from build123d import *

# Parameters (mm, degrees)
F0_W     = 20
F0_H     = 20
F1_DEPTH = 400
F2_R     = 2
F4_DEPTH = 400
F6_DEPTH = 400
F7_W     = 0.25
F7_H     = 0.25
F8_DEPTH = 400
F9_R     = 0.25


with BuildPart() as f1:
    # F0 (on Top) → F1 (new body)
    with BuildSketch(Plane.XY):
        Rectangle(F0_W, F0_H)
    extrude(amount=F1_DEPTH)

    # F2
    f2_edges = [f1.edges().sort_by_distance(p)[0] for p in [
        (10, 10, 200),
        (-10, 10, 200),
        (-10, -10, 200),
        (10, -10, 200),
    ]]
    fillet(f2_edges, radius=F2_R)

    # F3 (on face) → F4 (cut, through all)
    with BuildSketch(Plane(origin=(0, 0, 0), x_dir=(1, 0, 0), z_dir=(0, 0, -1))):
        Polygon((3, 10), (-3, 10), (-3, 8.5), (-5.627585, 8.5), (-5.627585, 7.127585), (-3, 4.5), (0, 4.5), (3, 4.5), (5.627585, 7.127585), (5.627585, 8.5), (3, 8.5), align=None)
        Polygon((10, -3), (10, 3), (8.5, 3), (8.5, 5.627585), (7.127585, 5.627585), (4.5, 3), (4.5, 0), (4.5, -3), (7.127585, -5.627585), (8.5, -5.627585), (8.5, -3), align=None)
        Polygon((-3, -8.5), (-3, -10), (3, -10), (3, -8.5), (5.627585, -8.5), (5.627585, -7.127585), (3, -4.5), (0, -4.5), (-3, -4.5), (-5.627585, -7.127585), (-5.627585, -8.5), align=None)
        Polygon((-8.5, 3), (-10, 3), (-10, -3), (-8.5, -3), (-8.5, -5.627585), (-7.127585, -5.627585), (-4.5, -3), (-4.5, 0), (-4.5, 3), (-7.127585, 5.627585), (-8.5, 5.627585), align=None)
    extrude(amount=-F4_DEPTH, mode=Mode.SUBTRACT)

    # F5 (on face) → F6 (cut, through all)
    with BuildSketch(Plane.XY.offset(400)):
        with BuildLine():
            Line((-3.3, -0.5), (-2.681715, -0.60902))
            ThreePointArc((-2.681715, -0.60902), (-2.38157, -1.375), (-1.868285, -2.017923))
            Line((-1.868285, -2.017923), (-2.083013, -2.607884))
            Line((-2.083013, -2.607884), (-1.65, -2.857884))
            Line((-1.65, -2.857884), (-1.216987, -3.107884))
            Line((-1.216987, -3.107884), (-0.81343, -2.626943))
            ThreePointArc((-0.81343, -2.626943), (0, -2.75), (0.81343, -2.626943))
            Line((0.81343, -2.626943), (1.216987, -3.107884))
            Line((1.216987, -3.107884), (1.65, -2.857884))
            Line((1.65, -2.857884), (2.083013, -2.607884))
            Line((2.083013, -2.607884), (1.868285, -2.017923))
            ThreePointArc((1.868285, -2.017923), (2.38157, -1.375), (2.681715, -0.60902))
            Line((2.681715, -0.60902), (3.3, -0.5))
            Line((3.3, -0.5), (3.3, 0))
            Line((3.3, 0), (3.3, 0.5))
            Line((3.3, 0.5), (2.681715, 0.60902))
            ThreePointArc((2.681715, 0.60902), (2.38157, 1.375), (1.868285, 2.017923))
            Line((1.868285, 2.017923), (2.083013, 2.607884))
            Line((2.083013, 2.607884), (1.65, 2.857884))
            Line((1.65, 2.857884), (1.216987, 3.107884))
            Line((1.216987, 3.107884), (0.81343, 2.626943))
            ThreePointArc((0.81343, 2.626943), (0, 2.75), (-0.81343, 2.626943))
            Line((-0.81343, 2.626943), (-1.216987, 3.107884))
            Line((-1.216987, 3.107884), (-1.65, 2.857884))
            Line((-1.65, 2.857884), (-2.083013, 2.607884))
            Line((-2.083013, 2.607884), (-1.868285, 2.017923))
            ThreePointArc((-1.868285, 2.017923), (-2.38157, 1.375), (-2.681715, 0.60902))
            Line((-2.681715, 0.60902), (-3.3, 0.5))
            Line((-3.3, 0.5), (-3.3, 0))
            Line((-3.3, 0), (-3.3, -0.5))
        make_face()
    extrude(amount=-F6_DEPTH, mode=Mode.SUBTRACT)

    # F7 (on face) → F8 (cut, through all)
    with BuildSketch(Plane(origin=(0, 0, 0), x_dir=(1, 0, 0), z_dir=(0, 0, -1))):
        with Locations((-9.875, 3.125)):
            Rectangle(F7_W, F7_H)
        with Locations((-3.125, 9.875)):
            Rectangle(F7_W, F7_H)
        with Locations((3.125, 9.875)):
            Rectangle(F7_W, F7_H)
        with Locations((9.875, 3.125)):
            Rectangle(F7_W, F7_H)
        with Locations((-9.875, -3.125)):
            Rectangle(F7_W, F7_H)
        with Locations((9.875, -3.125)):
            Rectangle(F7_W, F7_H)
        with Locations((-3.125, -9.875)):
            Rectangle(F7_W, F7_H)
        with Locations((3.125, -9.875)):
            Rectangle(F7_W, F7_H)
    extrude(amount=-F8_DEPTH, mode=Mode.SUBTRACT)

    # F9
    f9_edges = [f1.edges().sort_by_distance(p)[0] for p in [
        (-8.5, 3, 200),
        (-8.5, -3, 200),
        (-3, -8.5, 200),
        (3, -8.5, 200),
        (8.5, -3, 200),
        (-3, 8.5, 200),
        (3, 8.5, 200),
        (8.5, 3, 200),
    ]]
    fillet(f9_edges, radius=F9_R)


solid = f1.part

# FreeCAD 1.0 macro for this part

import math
import FreeCAD as App
import Part
import Sketcher

V = App.Vector
Q = App.Units.Quantity


def edges_at(feature, points):
    """Names of the edges that pass closest to the given points."""
    edges = feature.Shape.Edges
    near = lambda p: min(range(len(edges)), key=lambda i: edges[i].distToShape(Part.Vertex(*p))[0])
    return sorted({f"Edge{near(p) + 1}" for p in points})


def add_polygon(sketch, points):
    """Adds a closed chain of lines whose ends are joined by coincident constraints."""
    first, n = sketch.GeometryCount, len(points)
    for a, b in zip(points, points[1:] + points[:1]):
        sketch.addGeometry(Part.LineSegment(App.Vector(*a, 0), App.Vector(*b, 0)), False)
    for i in range(n):
        sketch.addConstraint(Sketcher.Constraint("Coincident", first + i, 2, first + (i + 1) % n, 1))

doc = App.newDocument("Part")
body = doc.addObject("PartDesign::Body", "Body")

sketch1 = doc.addObject("Sketcher::SketchObject", "Sketch")
body.addObject(sketch1)
sketch1.AttachmentSupport = (doc.XY_Plane, [""])
sketch1.MapMode = "FlatFace"
add_polygon(sketch1, [(-10, 10), (-10, -10), (10, -10), (10, 10)])
sketch1.addConstraint([
    Sketcher.Constraint("Vertical", 0),
    Sketcher.Constraint("Horizontal", 1),
    Sketcher.Constraint("Vertical", 2),
    Sketcher.Constraint("Horizontal", 3),
    Sketcher.Constraint("Symmetric", 0, 2, 2, 2, -1, 1),
    Sketcher.Constraint("Equal", 3, 0),
    Sketcher.Constraint("DistanceX", 1, 1, 1, 2, Q("20 mm")),
])
pad1 = doc.addObject("PartDesign::Pad", "Pad")
body.addObject(pad1)
pad1.Profile = sketch1
pad1.Length = 400
doc.recompute()

fillet = doc.addObject("PartDesign::Fillet", "Fillet")
body.addObject(fillet)
fillet.Base = (pad1, edges_at(pad1, [
    (10, 10, 200),
    (-10, 10, 200),
    (-10, -10, 200),
    (10, -10, 200),
]))
fillet.Radius = 2

sketch2 = doc.addObject("Sketcher::SketchObject", "Sketch001")
body.addObject(sketch2)
sketch2.AttachmentSupport = (doc.XY_Plane, [""])
sketch2.MapMode = "FlatFace"
add_polygon(sketch2, [(3, -10), (-3, -10), (-3, -8.5), (-5.6, -8.5), (-5.6, -7.1), (-3, -4.5), (3, -4.5), (5.6, -7.1), (5.6, -8.5), (3, -8.5)])
add_polygon(sketch2, [(10, 3), (10, -3), (8.5, -3), (8.5, -5.6), (7.1, -5.6), (4.5, -3), (4.5, 3), (7.1, 5.6), (8.5, 5.6), (8.5, 3)])
add_polygon(sketch2, [(-3, 8.5), (-3, 10), (3, 10), (3, 8.5), (5.6, 8.5), (5.6, 7.1), (3, 4.5), (-3, 4.5), (-5.6, 7.1), (-5.6, 8.5)])
add_polygon(sketch2, [(-8.5, -3), (-10, -3), (-10, 3), (-8.5, 3), (-8.5, 5.6), (-7.1, 5.6), (-4.5, 3), (-4.5, -3), (-7.1, -5.6), (-8.5, -5.6)])
sketch2.addConstraint([
    Sketcher.Constraint("Horizontal", 0),
    Sketcher.Constraint("Vertical", 1),
    Sketcher.Constraint("Horizontal", 2),
    Sketcher.Constraint("Vertical", 3),
    Sketcher.Constraint("Horizontal", 5),
    Sketcher.Constraint("Vertical", 7),
    Sketcher.Constraint("Horizontal", 8),
    Sketcher.Constraint("Vertical", 9),
    Sketcher.Constraint("Vertical", 10),
    Sketcher.Constraint("Horizontal", 11),
    Sketcher.Constraint("Vertical", 12),
    Sketcher.Constraint("Horizontal", 13),
    Sketcher.Constraint("Vertical", 15),
    Sketcher.Constraint("Horizontal", 17),
    Sketcher.Constraint("Vertical", 18),
    Sketcher.Constraint("Horizontal", 19),
    Sketcher.Constraint("Vertical", 20),
    Sketcher.Constraint("Horizontal", 21),
    Sketcher.Constraint("Vertical", 22),
    Sketcher.Constraint("Horizontal", 23),
    Sketcher.Constraint("Vertical", 24),
    Sketcher.Constraint("Horizontal", 26),
    Sketcher.Constraint("Vertical", 28),
    Sketcher.Constraint("Horizontal", 29),
    Sketcher.Constraint("Horizontal", 30),
    Sketcher.Constraint("Vertical", 31),
    Sketcher.Constraint("Horizontal", 32),
    Sketcher.Constraint("Vertical", 33),
    Sketcher.Constraint("Horizontal", 34),
    Sketcher.Constraint("Vertical", 36),
    Sketcher.Constraint("Horizontal", 38),
    Sketcher.Constraint("Vertical", 39),
    Sketcher.Constraint("Symmetric", 9, 2, 20, 2, -1, 1),
    Sketcher.Constraint("Symmetric", 1, 2, 22, 2, -1, 1),
    Sketcher.Constraint("Symmetric", 3, 2, 24, 2, -1, 1),
    Sketcher.Constraint("Symmetric", 4, 2, 25, 2, -1, 1),
    Sketcher.Constraint("Symmetric", 6, 2, 27, 2, -1, 1),
    Sketcher.Constraint("Symmetric", 19, 2, 30, 2, -1, 1),
    Sketcher.Constraint("Symmetric", 11, 2, 32, 2, -1, 1),
    Sketcher.Constraint("Symmetric", 13, 2, 34, 2, -1, 1),
    Sketcher.Constraint("Symmetric", 14, 2, 35, 2, -1, 1),
    Sketcher.Constraint("Symmetric", 16, 2, 37, 2, -1, 1),
    Sketcher.Constraint("Symmetric", 3, 2, 6, 2, -2),
    Sketcher.Constraint("Symmetric", 1, 2, 8, 2, -2),
    Sketcher.Constraint("Symmetric", 18, 2, 32, 2, -2),
    Sketcher.Constraint("Symmetric", 16, 2, 34, 2, -2),
    Sketcher.Constraint("Perpendicular", 4, 6),
    Sketcher.Constraint("Parallel", 6, 14),
    Sketcher.Constraint("Perpendicular", 14, 16),
    Sketcher.Constraint("Perpendicular", 25, 27),
    Sketcher.Constraint("Perpendicular", 35, 37),
    Sketcher.Constraint("Horizontal", 11, 2, 14, 2),
    Sketcher.Constraint("Horizontal", 15, 2, 18, 2),
    Sketcher.Constraint("Horizontal", 23, 2, 28, 2),
    Sketcher.Constraint("Vertical", 1, 2, 4, 2),
    Sketcher.Constraint("Vertical", 33, 2, 38, 2),
    Sketcher.Constraint("Equal", 32, 1),
    Sketcher.Constraint("Equal", 38, 3),
    Sketcher.Constraint("Equal", 26, 10),
    Sketcher.Constraint("Equal", 29, 12),
    Sketcher.Constraint("DistanceX", 0, 2, 0, 1, Q("6 mm")),
    Sketcher.Constraint("DistanceX", 11, 2, 11, 1, Q("1.5 mm")),
    Sketcher.Constraint("DistanceY", 0, 2, -1, 1, Q("10 mm")),
    Sketcher.Constraint("DistanceX", -1, 1, 10, 2, Q("10 mm")),
    Sketcher.Constraint("DistanceY", 1, 2, 4, 2, Q("4 mm")),
    Sketcher.Constraint("DistanceX", 2, 2, 2, 1, Q("2.627585 mm")),
])
pocket1 = doc.addObject("PartDesign::Pocket", "Pocket")
body.addObject(pocket1)
pocket1.Profile = sketch2
pocket1.Type = "ThroughAll"
pocket1.Reversed = True

sketch3 = doc.addObject("Sketcher::SketchObject", "Sketch002")
body.addObject(sketch3)
sketch3.AttachmentSupport = (doc.XY_Plane, [""])
sketch3.MapMode = "FlatFace"
sketch3.AttachmentOffset = App.Placement(V(0, 0, 400), App.Rotation())
sketch3.addGeometry([
    Part.LineSegment(V(-3.3, -0.5, 0), V(-2.681715, -0.60902, 0)),
    Part.ArcOfCircle(Part.Circle(V(0.000003, 0.000001, 0), V(0, 0, 1), 2.750003), math.radians(-167.205084), math.radians(-132.794948)),
    Part.LineSegment(V(-1.868285, -2.017923, 0), V(-2.083013, -2.607884, 0)),
    Part.LineSegment(V(-2.083013, -2.607884, 0), V(-1.216987, -3.107884, 0)),
    Part.LineSegment(V(-1.216987, -3.107884, 0), V(-0.81343, -2.626943, 0)),
    Part.ArcOfCircle(Part.Circle(V(0, -0.000009, 0), V(0, 0, 1), 2.749991), math.radians(-107.205134), math.radians(-72.794866)),
    Part.LineSegment(V(0.81343, -2.626943, 0), V(1.216987, -3.107884, 0)),
    Part.LineSegment(V(1.216987, -3.107884, 0), V(2.083013, -2.607884, 0)),
    Part.LineSegment(V(2.083013, -2.607884, 0), V(1.868285, -2.017923, 0)),
    Part.ArcOfCircle(Part.Circle(V(-0.000003, 0.000001, 0), V(0, 0, 1), 2.750003), math.radians(-47.205052), math.radians(-12.794916)),
    Part.LineSegment(V(2.681715, -0.60902, 0), V(3.3, -0.5, 0)),
    Part.LineSegment(V(3.3, -0.5, 0), V(3.3, 0.5, 0)),
    Part.LineSegment(V(3.3, 0.5, 0), V(2.681715, 0.60902, 0)),
    Part.ArcOfCircle(Part.Circle(V(-0.000003, -0.000001, 0), V(0, 0, 1), 2.750003), math.radians(12.794916), math.radians(47.205052)),
    Part.LineSegment(V(1.868285, 2.017923, 0), V(2.083013, 2.607884, 0)),
    Part.LineSegment(V(2.083013, 2.607884, 0), V(1.216987, 3.107884, 0)),
    Part.LineSegment(V(1.216987, 3.107884, 0), V(0.81343, 2.626943, 0)),
    Part.ArcOfCircle(Part.Circle(V(0, 0.000009, 0), V(0, 0, 1), 2.749991), math.radians(72.794866), math.radians(107.205134)),
    Part.LineSegment(V(-0.81343, 2.626943, 0), V(-1.216987, 3.107884, 0)),
    Part.LineSegment(V(-1.216987, 3.107884, 0), V(-2.083013, 2.607884, 0)),
    Part.LineSegment(V(-2.083013, 2.607884, 0), V(-1.868285, 2.017923, 0)),
    Part.ArcOfCircle(Part.Circle(V(0.000003, -0.000001, 0), V(0, 0, 1), 2.750003), math.radians(132.794948), math.radians(167.205084)),
    Part.LineSegment(V(-2.681715, 0.60902, 0), V(-3.3, 0.5, 0)),
    Part.LineSegment(V(-3.3, 0.5, 0), V(-3.3, -0.5, 0)),
], False)
sketch3.addConstraint([
    Sketcher.Constraint("Coincident", 0, 2, 1, 1),
    Sketcher.Constraint("Coincident", 1, 2, 2, 1),
    Sketcher.Constraint("Coincident", 2, 2, 3, 1),
    Sketcher.Constraint("Coincident", 3, 2, 4, 1),
    Sketcher.Constraint("Coincident", 4, 2, 5, 1),
    Sketcher.Constraint("Coincident", 5, 2, 6, 1),
    Sketcher.Constraint("Coincident", 6, 2, 7, 1),
    Sketcher.Constraint("Coincident", 7, 2, 8, 1),
    Sketcher.Constraint("Coincident", 8, 2, 9, 1),
    Sketcher.Constraint("Coincident", 9, 2, 10, 1),
    Sketcher.Constraint("Coincident", 10, 2, 11, 1),
    Sketcher.Constraint("Coincident", 11, 2, 12, 1),
    Sketcher.Constraint("Coincident", 12, 2, 13, 1),
    Sketcher.Constraint("Coincident", 13, 2, 14, 1),
    Sketcher.Constraint("Coincident", 14, 2, 15, 1),
    Sketcher.Constraint("Coincident", 15, 2, 16, 1),
    Sketcher.Constraint("Coincident", 16, 2, 17, 1),
    Sketcher.Constraint("Coincident", 17, 2, 18, 1),
    Sketcher.Constraint("Coincident", 18, 2, 19, 1),
    Sketcher.Constraint("Coincident", 19, 2, 20, 1),
    Sketcher.Constraint("Coincident", 20, 2, 21, 1),
    Sketcher.Constraint("Coincident", 21, 2, 22, 1),
    Sketcher.Constraint("Coincident", 22, 2, 23, 1),
    Sketcher.Constraint("Coincident", 23, 2, 0, 1),
    Sketcher.Constraint("Vertical", 11),
    Sketcher.Constraint("Vertical", 23),
    Sketcher.Constraint("Coincident", 1, 3, -1, 1),
    Sketcher.Constraint("Coincident", 5, 3, -1, 1),
    Sketcher.Constraint("Coincident", 9, 3, -1, 1),
    Sketcher.Constraint("Coincident", 13, 3, -1, 1),
    Sketcher.Constraint("Coincident", 17, 3, -1, 1),
    Sketcher.Constraint("Coincident", 21, 3, -1, 1),
    Sketcher.Constraint("DistanceY", 11, 1, 11, 2, Q("1 mm")),
    Sketcher.Constraint("DistanceY", 23, 2, 23, 1, Q("1 mm")),
    Sketcher.Constraint("Distance", 3, Q("1.000001 mm")),
    Sketcher.Constraint("Distance", 7, Q("1.000001 mm")),
    Sketcher.Constraint("Distance", 15, Q("1.000001 mm")),
    Sketcher.Constraint("Distance", 19, Q("1.000001 mm")),
    Sketcher.Constraint("DistanceX", -1, 1, 10, 2, Q("3.3 mm")),
    Sketcher.Constraint("DistanceY", 10, 2, -1, 1, Q("0.5 mm")),
    Sketcher.Constraint("DistanceX", 22, 2, -1, 1, Q("3.3 mm")),
    Sketcher.Constraint("DistanceY", -1, 1, 22, 2, Q("0.5 mm")),
    Sketcher.Constraint("DistanceY", 3, 2, 2, 2, Q("0.5 mm")),
    Sketcher.Constraint("DistanceY", 6, 2, 7, 2, Q("0.5 mm")),
    Sketcher.Constraint("DistanceY", 14, 2, 15, 2, Q("0.5 mm")),
    Sketcher.Constraint("DistanceY", 19, 2, 18, 2, Q("0.5 mm")),
    Sketcher.Constraint("Radius", 5, Q("2.749991 mm")),
    Sketcher.Constraint("Radius", 17, Q("2.749991 mm")),
    Sketcher.Constraint("Radius", 1, Q("2.750003 mm")),
    Sketcher.Constraint("Radius", 9, Q("2.750003 mm")),
    Sketcher.Constraint("Radius", 13, Q("2.750003 mm")),
    Sketcher.Constraint("Radius", 21, Q("2.750003 mm")),
    Sketcher.Constraint("DistanceX", 1, 2, 3, 2, Q("0.651298 mm")),
    Sketcher.Constraint("DistanceX", 15, 2, 13, 2, Q("0.651298 mm")),
    Sketcher.Constraint("DistanceY", 0, 2, -1, 1, Q("0.60902 mm")),
    Sketcher.Constraint("DistanceX", 4, 2, -1, 1, Q("0.81343 mm")),
    Sketcher.Constraint("DistanceX", -1, 1, 5, 2, Q("0.81343 mm")),
    Sketcher.Constraint("DistanceY", 9, 2, -1, 1, Q("0.60902 mm")),
    Sketcher.Constraint("DistanceY", -1, 1, 12, 2, Q("0.60902 mm")),
    Sketcher.Constraint("DistanceX", -1, 1, 16, 2, Q("0.81343 mm")),
    Sketcher.Constraint("DistanceX", 17, 2, -1, 1, Q("0.81343 mm")),
    Sketcher.Constraint("DistanceY", -1, 1, 21, 2, Q("0.60902 mm")),
    Sketcher.Constraint("DistanceX", 0, 2, 1, 2, Q("0.81343 mm")),
    Sketcher.Constraint("DistanceY", 2, 2, 1, 2, Q("0.589961 mm")),
    Sketcher.Constraint("DistanceY", 6, 2, 5, 2, Q("0.480941 mm")),
    Sketcher.Constraint("DistanceX", 21, 3, 7, 2, Q("2.08301 mm")),
    Sketcher.Constraint("DistanceY", 7, 2, 8, 2, Q("0.589961 mm")),
    Sketcher.Constraint("DistanceX", 13, 2, 12, 2, Q("0.81343 mm")),
    Sketcher.Constraint("DistanceY", 13, 2, 14, 2, Q("0.589961 mm")),
    Sketcher.Constraint("DistanceY", 17, 2, 18, 2, Q("0.480941 mm")),
    Sketcher.Constraint("DistanceY", 20, 2, 19, 2, Q("0.589961 mm")),
    Sketcher.Constraint("Distance", 18, Q("0.627824 mm")),
])
pocket2 = doc.addObject("PartDesign::Pocket", "Pocket001")
body.addObject(pocket2)
pocket2.Profile = sketch3
pocket2.Type = "ThroughAll"

sketch4 = doc.addObject("Sketcher::SketchObject", "Sketch003")
body.addObject(sketch4)
sketch4.AttachmentSupport = (doc.XY_Plane, [""])
sketch4.MapMode = "FlatFace"
add_polygon(sketch4, [(-10, -3.25), (-10, -3), (-9.75, -3), (-9.75, -3.25)])
add_polygon(sketch4, [(-3.25, -10), (-3.25, -9.75), (-3, -9.75), (-3, -10)])
add_polygon(sketch4, [(3, -10), (3, -9.75), (3.25, -9.75), (3.25, -10)])
add_polygon(sketch4, [(9.75, -3.25), (9.75, -3), (10, -3), (10, -3.25)])
add_polygon(sketch4, [(-10, 3), (-10, 3.25), (-9.75, 3.25), (-9.75, 3)])
add_polygon(sketch4, [(9.75, 3), (9.75, 3.25), (10, 3.25), (10, 3)])
add_polygon(sketch4, [(-3.25, 9.75), (-3.25, 10), (-3, 10), (-3, 9.75)])
add_polygon(sketch4, [(3, 9.75), (3, 10), (3.25, 10), (3.25, 9.75)])
sketch4.addConstraint([
    Sketcher.Constraint("Vertical", 0),
    Sketcher.Constraint("Horizontal", 1),
    Sketcher.Constraint("Vertical", 2),
    Sketcher.Constraint("Horizontal", 3),
    Sketcher.Constraint("Vertical", 4),
    Sketcher.Constraint("Horizontal", 5),
    Sketcher.Constraint("Vertical", 6),
    Sketcher.Constraint("Horizontal", 7),
    Sketcher.Constraint("Vertical", 8),
    Sketcher.Constraint("Horizontal", 9),
    Sketcher.Constraint("Vertical", 10),
    Sketcher.Constraint("Horizontal", 11),
    Sketcher.Constraint("Vertical", 12),
    Sketcher.Constraint("Horizontal", 13),
    Sketcher.Constraint("Vertical", 14),
    Sketcher.Constraint("Horizontal", 15),
    Sketcher.Constraint("Vertical", 16),
    Sketcher.Constraint("Horizontal", 17),
    Sketcher.Constraint("Vertical", 18),
    Sketcher.Constraint("Horizontal", 19),
    Sketcher.Constraint("Vertical", 20),
    Sketcher.Constraint("Horizontal", 21),
    Sketcher.Constraint("Vertical", 22),
    Sketcher.Constraint("Horizontal", 23),
    Sketcher.Constraint("Vertical", 24),
    Sketcher.Constraint("Horizontal", 25),
    Sketcher.Constraint("Vertical", 26),
    Sketcher.Constraint("Horizontal", 27),
    Sketcher.Constraint("Vertical", 28),
    Sketcher.Constraint("Horizontal", 29),
    Sketcher.Constraint("Vertical", 30),
    Sketcher.Constraint("Horizontal", 31),
    Sketcher.Constraint("Symmetric", 14, 2, 16, 2, -1, 1),
    Sketcher.Constraint("Symmetric", 12, 2, 18, 2, -1, 1),
    Sketcher.Constraint("Symmetric", 2, 2, 20, 2, -1, 1),
    Sketcher.Constraint("Symmetric", 0, 2, 22, 2, -1, 1),
    Sketcher.Constraint("Symmetric", 10, 2, 24, 2, -1, 1),
    Sketcher.Constraint("Symmetric", 8, 2, 26, 2, -1, 1),
    Sketcher.Constraint("Symmetric", 6, 2, 28, 2, -1, 1),
    Sketcher.Constraint("Symmetric", 4, 2, 30, 2, -1, 1),
    Sketcher.Constraint("Symmetric", 5, 2, 8, 2, -2),
    Sketcher.Constraint("Symmetric", 7, 2, 10, 2, -2),
    Sketcher.Constraint("Symmetric", 1, 2, 12, 2, -2),
    Sketcher.Constraint("Symmetric", 3, 2, 14, 2, -2),
    Sketcher.Constraint("Equal", 3, 5),
    Sketcher.Constraint("Equal", 31, 0),
    Sketcher.Constraint("Equal", 2, 4),
    Sketcher.Constraint("DistanceX", 0, 2, -1, 1, Q("10 mm")),
    Sketcher.Constraint("DistanceY", 0, 2, -1, 1, Q("3 mm")),
    Sketcher.Constraint("DistanceX", 5, 2, -1, 1, Q("3 mm")),
    Sketcher.Constraint("DistanceY", 6, 2, -1, 1, Q("10 mm")),
    Sketcher.Constraint("DistanceX", 1, 1, 1, 2, Q("0.25 mm")),
])
pocket3 = doc.addObject("PartDesign::Pocket", "Pocket002")
body.addObject(pocket3)
pocket3.Profile = sketch4
pocket3.Type = "ThroughAll"
pocket3.Reversed = True
doc.recompute()

fillet2 = doc.addObject("PartDesign::Fillet", "Fillet001")
body.addObject(fillet2)
fillet2.Base = (pocket3, edges_at(pocket3, [
    (-8.5, 3, 200),
    (-8.5, -3, 200),
    (-3, -8.5, 200),
    (3, -8.5, 200),
    (8.5, -3, 200),
    (-3, 8.5, 200),
    (3, 8.5, 200),
    (8.5, 3, 200),
]))
fillet2.Radius = 0.25

doc.recompute()
